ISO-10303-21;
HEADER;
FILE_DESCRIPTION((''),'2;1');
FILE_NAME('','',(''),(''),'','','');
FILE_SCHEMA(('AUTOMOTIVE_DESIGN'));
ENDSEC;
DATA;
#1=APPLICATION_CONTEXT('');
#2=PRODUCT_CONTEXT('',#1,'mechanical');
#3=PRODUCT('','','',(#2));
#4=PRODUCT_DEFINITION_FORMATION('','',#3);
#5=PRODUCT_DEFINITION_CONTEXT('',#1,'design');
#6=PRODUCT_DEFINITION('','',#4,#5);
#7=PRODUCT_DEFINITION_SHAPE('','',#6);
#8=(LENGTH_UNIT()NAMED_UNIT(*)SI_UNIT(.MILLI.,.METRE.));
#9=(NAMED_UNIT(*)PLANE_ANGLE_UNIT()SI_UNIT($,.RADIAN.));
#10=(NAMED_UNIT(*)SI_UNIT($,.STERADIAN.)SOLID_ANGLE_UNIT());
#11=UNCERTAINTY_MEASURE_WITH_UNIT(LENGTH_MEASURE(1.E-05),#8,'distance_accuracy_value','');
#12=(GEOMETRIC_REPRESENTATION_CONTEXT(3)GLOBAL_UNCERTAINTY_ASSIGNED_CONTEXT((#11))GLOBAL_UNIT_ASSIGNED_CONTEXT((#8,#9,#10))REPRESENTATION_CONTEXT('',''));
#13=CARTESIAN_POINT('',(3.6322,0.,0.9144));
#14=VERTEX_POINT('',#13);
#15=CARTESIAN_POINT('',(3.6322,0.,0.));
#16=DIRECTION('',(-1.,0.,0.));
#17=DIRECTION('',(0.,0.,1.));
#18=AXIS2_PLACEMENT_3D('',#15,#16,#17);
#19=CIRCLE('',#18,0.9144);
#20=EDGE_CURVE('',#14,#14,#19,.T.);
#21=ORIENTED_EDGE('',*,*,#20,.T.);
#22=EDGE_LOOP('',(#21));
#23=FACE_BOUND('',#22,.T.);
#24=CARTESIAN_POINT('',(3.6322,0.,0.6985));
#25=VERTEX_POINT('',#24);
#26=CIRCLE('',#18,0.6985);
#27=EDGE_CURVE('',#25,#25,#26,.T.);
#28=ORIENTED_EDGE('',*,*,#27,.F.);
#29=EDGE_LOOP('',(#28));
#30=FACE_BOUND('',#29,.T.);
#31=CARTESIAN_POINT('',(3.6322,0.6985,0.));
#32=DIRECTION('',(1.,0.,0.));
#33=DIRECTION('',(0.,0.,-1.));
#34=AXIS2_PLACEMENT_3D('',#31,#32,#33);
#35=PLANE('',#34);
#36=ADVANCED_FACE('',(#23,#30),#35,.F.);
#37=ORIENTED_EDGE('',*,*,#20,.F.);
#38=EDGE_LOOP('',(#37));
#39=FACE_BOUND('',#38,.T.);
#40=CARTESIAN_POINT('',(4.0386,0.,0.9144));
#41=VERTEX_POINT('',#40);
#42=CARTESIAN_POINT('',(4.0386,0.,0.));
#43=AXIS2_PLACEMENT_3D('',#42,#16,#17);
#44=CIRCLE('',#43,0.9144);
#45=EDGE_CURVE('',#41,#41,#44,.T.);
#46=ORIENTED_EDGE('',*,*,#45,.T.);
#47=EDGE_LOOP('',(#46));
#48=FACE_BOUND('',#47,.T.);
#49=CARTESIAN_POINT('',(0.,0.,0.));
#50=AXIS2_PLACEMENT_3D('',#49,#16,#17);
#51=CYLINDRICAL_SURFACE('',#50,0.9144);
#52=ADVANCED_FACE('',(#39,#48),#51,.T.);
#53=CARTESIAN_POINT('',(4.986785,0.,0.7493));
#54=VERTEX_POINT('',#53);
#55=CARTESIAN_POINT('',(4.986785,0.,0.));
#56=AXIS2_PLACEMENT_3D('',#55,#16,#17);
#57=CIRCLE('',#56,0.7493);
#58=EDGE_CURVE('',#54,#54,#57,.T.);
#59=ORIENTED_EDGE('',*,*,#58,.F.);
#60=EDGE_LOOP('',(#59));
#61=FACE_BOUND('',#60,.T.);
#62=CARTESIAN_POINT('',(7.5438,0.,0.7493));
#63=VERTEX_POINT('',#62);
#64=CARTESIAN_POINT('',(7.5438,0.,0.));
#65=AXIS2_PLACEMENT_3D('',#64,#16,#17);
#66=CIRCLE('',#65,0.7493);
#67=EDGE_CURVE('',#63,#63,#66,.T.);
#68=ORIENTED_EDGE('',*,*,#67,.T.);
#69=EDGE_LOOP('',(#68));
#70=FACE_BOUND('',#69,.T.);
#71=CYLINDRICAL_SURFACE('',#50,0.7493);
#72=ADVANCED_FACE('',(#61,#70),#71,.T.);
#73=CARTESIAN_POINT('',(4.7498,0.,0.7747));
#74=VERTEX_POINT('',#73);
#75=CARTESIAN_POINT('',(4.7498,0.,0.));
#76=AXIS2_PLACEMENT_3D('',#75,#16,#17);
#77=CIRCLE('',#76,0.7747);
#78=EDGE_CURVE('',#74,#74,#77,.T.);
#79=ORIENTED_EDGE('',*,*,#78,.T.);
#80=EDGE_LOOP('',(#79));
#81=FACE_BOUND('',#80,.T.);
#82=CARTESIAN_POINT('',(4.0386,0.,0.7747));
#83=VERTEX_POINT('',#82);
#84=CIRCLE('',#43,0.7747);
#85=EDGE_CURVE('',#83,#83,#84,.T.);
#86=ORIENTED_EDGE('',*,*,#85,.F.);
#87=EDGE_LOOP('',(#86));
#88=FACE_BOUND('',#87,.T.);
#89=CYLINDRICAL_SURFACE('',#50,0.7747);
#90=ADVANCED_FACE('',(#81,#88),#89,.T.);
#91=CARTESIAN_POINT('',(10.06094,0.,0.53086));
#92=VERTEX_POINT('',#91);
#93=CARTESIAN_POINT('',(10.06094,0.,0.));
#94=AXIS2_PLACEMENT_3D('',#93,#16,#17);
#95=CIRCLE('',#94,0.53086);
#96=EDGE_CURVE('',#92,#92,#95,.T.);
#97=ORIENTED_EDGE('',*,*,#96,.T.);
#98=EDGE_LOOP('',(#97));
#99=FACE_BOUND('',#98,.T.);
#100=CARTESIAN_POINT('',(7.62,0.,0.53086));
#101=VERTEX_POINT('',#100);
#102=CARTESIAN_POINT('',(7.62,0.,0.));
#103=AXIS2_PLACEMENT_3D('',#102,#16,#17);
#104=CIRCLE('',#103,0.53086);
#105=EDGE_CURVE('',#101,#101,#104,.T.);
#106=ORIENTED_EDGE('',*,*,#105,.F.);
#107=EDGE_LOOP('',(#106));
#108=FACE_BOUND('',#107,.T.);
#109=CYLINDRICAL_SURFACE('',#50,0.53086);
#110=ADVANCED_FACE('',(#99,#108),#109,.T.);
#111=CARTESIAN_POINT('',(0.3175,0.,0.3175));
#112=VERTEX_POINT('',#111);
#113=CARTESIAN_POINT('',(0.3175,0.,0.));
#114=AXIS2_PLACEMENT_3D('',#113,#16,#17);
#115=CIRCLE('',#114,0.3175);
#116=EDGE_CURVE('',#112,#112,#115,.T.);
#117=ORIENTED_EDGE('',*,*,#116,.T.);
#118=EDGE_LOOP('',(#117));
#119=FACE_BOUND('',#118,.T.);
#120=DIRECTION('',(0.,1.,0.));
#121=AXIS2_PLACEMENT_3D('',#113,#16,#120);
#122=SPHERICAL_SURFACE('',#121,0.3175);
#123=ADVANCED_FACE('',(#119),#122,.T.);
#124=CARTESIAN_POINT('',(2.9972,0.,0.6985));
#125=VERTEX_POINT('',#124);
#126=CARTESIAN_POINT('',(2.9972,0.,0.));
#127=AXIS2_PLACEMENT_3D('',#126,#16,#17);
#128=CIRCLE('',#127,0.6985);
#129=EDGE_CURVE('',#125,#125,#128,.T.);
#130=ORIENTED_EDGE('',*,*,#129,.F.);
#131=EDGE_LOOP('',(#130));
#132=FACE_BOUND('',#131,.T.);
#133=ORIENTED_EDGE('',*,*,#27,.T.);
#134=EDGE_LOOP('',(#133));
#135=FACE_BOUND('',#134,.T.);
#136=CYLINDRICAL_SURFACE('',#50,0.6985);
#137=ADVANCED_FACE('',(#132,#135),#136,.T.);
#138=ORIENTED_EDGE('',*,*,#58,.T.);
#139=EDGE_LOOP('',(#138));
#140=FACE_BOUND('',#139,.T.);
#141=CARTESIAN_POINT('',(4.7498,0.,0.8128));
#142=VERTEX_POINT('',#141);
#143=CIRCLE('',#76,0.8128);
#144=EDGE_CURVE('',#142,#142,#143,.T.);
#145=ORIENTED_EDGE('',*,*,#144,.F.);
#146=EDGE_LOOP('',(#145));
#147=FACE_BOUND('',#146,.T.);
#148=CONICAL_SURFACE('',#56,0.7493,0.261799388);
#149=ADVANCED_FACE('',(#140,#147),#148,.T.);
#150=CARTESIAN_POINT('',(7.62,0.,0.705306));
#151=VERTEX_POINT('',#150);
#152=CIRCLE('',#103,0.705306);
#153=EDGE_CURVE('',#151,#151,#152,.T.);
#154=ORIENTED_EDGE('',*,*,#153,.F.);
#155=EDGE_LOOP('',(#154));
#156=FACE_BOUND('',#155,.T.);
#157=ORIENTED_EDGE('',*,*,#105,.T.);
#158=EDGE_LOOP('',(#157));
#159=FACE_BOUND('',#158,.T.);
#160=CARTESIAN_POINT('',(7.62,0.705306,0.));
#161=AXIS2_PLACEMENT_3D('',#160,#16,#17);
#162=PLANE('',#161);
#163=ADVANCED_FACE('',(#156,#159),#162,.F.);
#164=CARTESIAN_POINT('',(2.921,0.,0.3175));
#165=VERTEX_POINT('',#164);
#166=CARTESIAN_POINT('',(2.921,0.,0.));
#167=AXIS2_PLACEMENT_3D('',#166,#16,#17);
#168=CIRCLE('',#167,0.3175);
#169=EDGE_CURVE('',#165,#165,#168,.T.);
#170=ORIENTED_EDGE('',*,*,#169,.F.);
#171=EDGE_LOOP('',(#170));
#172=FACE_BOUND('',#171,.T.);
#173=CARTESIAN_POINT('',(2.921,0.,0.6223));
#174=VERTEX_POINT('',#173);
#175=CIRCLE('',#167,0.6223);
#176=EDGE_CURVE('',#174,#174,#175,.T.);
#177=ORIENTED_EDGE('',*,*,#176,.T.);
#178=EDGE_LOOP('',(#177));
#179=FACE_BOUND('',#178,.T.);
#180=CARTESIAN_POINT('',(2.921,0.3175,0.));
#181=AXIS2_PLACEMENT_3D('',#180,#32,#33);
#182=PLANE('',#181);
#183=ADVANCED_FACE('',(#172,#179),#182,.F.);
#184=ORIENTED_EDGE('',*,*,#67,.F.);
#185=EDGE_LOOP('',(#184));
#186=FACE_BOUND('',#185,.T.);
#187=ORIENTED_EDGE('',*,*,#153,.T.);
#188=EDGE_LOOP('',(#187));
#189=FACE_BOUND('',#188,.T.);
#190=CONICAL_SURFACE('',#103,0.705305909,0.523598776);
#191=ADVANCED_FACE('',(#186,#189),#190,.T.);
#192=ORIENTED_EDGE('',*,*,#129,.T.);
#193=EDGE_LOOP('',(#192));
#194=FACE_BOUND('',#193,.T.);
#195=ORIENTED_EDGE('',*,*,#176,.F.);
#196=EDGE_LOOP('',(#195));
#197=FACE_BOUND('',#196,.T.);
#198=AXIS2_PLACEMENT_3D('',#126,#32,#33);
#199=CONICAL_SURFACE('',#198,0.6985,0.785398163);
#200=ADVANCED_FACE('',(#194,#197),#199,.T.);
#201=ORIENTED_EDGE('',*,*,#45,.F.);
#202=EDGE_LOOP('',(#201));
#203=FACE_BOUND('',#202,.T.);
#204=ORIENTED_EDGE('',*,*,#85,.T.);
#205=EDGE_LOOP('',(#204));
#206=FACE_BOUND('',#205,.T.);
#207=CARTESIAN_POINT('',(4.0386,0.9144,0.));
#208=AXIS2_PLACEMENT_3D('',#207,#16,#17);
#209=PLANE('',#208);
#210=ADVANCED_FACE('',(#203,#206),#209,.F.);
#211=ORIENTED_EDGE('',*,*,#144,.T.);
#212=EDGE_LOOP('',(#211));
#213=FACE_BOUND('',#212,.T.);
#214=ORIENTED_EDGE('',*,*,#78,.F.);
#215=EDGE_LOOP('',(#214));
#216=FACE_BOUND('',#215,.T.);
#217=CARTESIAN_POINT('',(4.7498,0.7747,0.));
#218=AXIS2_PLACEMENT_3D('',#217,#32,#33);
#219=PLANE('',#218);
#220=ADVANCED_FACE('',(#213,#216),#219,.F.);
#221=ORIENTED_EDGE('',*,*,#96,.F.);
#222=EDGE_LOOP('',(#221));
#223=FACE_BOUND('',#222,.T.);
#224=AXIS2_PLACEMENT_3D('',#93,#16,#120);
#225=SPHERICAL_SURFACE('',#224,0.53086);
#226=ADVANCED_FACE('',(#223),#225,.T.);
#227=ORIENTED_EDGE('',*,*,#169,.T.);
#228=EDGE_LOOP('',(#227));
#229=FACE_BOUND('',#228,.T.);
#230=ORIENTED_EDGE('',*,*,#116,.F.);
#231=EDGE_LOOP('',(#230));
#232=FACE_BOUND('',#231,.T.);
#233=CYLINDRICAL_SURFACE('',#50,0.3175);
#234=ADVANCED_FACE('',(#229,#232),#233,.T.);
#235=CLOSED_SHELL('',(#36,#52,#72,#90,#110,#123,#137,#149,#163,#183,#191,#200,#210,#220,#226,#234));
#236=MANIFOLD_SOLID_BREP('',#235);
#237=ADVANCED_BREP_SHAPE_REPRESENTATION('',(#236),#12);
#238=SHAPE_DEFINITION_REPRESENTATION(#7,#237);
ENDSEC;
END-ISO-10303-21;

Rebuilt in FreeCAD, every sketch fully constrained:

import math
import FreeCAD as App
import Part
import Sketcher

V = App.Vector
Q = App.Units.Quantity

doc = App.newDocument("Part")
body = doc.addObject("PartDesign::Body", "Body")

sketch1 = body.newObject("Sketcher::SketchObject", "Sketch")
sketch1.AttachmentSupport = (doc.getObject("XY_Plane"), [""])
sketch1.MapMode = "FlatFace"
sketch1.addGeometry([
    Part.LineSegment(V(0, 0, 0), V(10.5918, 0, 0)),
    Part.ArcOfCircle(Part.Circle(V(10.06094, 0, 0), V(0, 0, 1), 0.53086), math.radians(0), math.radians(90)),
    Part.LineSegment(V(10.06094, 0.53086, 0), V(7.62, 0.53086, 0)),
    Part.LineSegment(V(7.62, 0.53086, 0), V(7.62, 0.705306, 0)),
    Part.LineSegment(V(7.62, 0.705306, 0), V(7.5438, 0.7493, 0)),
    Part.LineSegment(V(7.5438, 0.7493, 0), V(4.986785, 0.7493, 0)),
    Part.LineSegment(V(4.986785, 0.7493, 0), V(4.7498, 0.8128, 0)),
    Part.LineSegment(V(4.7498, 0.8128, 0), V(4.7498, 0.7747, 0)),
    Part.LineSegment(V(4.7498, 0.7747, 0), V(4.0386, 0.7747, 0)),
    Part.LineSegment(V(4.0386, 0.7747, 0), V(4.0386, 0.9144, 0)),
    Part.LineSegment(V(4.0386, 0.9144, 0), V(3.6322, 0.9144, 0)),
    Part.LineSegment(V(3.6322, 0.9144, 0), V(3.6322, 0.6985, 0)),
    Part.LineSegment(V(3.6322, 0.6985, 0), V(2.9972, 0.6985, 0)),
    Part.LineSegment(V(2.9972, 0.6985, 0), V(2.921, 0.6223, 0)),
    Part.LineSegment(V(2.921, 0.6223, 0), V(2.921, 0.3175, 0)),
    Part.LineSegment(V(2.921, 0.3175, 0), V(0.3175, 0.3175, 0)),
    Part.ArcOfCircle(Part.Circle(V(0.3175, 0, 0), V(0, 0, 1), 0.3175), math.radians(90), math.radians(180)),
], False)
sketch1.addConstraint([
    Sketcher.Constraint("Coincident", 0, 2, 1, 1),
    Sketcher.Constraint("Tangent", 1, 2, 2, 1),
    Sketcher.Constraint("Coincident", 2, 2, 3, 1),
    Sketcher.Constraint("Coincident", 3, 2, 4, 1),
    Sketcher.Constraint("Coincident", 4, 2, 5, 1),
    Sketcher.Constraint("Coincident", 5, 2, 6, 1),
    Sketcher.Constraint("Coincident", 6, 2, 7, 1),
    Sketcher.Constraint("Coincident", 7, 2, 8, 1),
    Sketcher.Constraint("Coincident", 8, 2, 9, 1),
    Sketcher.Constraint("Coincident", 9, 2, 10, 1),
    Sketcher.Constraint("Coincident", 10, 2, 11, 1),
    Sketcher.Constraint("Coincident", 11, 2, 12, 1),
    Sketcher.Constraint("Coincident", 12, 2, 13, 1),
    Sketcher.Constraint("Coincident", 13, 2, 14, 1),
    Sketcher.Constraint("Coincident", 14, 2, 15, 1),
    Sketcher.Constraint("Tangent", 15, 2, 16, 1),
    Sketcher.Constraint("Coincident", 16, 2, 0, 1),
    Sketcher.Constraint("Horizontal", 0),
    Sketcher.Constraint("Horizontal", 2),
    Sketcher.Constraint("Vertical", 3),
    Sketcher.Constraint("Horizontal", 5),
    Sketcher.Constraint("Vertical", 7),
    Sketcher.Constraint("Horizontal", 8),
    Sketcher.Constraint("Vertical", 9),
    Sketcher.Constraint("Horizontal", 10),
    Sketcher.Constraint("Vertical", 11),
    Sketcher.Constraint("Horizontal", 12),
    Sketcher.Constraint("Vertical", 14),
    Sketcher.Constraint("Horizontal", 15),
    Sketcher.Constraint("Coincident", 16, 2, -1, 1),
    Sketcher.Constraint("PointOnObject", 1, 3, -1),
    Sketcher.Constraint("PointOnObject", 16, 3, -1),
    Sketcher.Constraint("Angle", 4, Q("150 deg")),
    Sketcher.Constraint("Angle", 6, Q("165 deg")),
    Sketcher.Constraint("Angle", 13, Q("-135 deg")),
    Sketcher.Constraint("DistanceX", -1, 1, 2, 2, Q("0.3 in")),
    Sketcher.Constraint("Radius", 1, Q("0.0209 in")),
    Sketcher.Constraint("Radius", 16, Q("0.0125 in")),
    Sketcher.Constraint("DistanceX", 0, 1, 0, 2, Q("0.417 in")),
    Sketcher.Constraint("DistanceX", 8, 2, 8, 1, Q("0.028 in")),
    Sketcher.Constraint("DistanceX", 10, 2, 10, 1, Q("0.016 in")),
    Sketcher.Constraint("DistanceX", 12, 2, 12, 1, Q("0.025 in")),
    Sketcher.Constraint("DistanceY", 14, 2, 14, 1, Q("0.012 in")),
    Sketcher.Constraint("DistanceX", 4, 2, 0, 2, Q("0.12 in")),
    Sketcher.Constraint("DistanceX", 6, 2, 4, 2, Q("0.11 in")),
    Sketcher.Constraint("DistanceX", 15, 2, 15, 1, Q("0.1025 in")),
    Sketcher.Constraint("DistanceY", 7, 2, 7, 1, Q("0.0015 in")),
    Sketcher.Constraint("DistanceY", 9, 1, 9, 2, Q("0.0055 in")),
    Sketcher.Constraint("DistanceY", 11, 2, 11, 1, Q("0.0085 in")),
    Sketcher.Constraint("DistanceY", 5, 2, 7, 2, Q("0.001 in")),
])
revolution = body.newObject("PartDesign::Revolution", "Revolution")
revolution.Profile = sketch1
revolution.ReferenceAxis = (sketch1, ["H_Axis"])
revolution.Angle = 360

doc.recompute()
